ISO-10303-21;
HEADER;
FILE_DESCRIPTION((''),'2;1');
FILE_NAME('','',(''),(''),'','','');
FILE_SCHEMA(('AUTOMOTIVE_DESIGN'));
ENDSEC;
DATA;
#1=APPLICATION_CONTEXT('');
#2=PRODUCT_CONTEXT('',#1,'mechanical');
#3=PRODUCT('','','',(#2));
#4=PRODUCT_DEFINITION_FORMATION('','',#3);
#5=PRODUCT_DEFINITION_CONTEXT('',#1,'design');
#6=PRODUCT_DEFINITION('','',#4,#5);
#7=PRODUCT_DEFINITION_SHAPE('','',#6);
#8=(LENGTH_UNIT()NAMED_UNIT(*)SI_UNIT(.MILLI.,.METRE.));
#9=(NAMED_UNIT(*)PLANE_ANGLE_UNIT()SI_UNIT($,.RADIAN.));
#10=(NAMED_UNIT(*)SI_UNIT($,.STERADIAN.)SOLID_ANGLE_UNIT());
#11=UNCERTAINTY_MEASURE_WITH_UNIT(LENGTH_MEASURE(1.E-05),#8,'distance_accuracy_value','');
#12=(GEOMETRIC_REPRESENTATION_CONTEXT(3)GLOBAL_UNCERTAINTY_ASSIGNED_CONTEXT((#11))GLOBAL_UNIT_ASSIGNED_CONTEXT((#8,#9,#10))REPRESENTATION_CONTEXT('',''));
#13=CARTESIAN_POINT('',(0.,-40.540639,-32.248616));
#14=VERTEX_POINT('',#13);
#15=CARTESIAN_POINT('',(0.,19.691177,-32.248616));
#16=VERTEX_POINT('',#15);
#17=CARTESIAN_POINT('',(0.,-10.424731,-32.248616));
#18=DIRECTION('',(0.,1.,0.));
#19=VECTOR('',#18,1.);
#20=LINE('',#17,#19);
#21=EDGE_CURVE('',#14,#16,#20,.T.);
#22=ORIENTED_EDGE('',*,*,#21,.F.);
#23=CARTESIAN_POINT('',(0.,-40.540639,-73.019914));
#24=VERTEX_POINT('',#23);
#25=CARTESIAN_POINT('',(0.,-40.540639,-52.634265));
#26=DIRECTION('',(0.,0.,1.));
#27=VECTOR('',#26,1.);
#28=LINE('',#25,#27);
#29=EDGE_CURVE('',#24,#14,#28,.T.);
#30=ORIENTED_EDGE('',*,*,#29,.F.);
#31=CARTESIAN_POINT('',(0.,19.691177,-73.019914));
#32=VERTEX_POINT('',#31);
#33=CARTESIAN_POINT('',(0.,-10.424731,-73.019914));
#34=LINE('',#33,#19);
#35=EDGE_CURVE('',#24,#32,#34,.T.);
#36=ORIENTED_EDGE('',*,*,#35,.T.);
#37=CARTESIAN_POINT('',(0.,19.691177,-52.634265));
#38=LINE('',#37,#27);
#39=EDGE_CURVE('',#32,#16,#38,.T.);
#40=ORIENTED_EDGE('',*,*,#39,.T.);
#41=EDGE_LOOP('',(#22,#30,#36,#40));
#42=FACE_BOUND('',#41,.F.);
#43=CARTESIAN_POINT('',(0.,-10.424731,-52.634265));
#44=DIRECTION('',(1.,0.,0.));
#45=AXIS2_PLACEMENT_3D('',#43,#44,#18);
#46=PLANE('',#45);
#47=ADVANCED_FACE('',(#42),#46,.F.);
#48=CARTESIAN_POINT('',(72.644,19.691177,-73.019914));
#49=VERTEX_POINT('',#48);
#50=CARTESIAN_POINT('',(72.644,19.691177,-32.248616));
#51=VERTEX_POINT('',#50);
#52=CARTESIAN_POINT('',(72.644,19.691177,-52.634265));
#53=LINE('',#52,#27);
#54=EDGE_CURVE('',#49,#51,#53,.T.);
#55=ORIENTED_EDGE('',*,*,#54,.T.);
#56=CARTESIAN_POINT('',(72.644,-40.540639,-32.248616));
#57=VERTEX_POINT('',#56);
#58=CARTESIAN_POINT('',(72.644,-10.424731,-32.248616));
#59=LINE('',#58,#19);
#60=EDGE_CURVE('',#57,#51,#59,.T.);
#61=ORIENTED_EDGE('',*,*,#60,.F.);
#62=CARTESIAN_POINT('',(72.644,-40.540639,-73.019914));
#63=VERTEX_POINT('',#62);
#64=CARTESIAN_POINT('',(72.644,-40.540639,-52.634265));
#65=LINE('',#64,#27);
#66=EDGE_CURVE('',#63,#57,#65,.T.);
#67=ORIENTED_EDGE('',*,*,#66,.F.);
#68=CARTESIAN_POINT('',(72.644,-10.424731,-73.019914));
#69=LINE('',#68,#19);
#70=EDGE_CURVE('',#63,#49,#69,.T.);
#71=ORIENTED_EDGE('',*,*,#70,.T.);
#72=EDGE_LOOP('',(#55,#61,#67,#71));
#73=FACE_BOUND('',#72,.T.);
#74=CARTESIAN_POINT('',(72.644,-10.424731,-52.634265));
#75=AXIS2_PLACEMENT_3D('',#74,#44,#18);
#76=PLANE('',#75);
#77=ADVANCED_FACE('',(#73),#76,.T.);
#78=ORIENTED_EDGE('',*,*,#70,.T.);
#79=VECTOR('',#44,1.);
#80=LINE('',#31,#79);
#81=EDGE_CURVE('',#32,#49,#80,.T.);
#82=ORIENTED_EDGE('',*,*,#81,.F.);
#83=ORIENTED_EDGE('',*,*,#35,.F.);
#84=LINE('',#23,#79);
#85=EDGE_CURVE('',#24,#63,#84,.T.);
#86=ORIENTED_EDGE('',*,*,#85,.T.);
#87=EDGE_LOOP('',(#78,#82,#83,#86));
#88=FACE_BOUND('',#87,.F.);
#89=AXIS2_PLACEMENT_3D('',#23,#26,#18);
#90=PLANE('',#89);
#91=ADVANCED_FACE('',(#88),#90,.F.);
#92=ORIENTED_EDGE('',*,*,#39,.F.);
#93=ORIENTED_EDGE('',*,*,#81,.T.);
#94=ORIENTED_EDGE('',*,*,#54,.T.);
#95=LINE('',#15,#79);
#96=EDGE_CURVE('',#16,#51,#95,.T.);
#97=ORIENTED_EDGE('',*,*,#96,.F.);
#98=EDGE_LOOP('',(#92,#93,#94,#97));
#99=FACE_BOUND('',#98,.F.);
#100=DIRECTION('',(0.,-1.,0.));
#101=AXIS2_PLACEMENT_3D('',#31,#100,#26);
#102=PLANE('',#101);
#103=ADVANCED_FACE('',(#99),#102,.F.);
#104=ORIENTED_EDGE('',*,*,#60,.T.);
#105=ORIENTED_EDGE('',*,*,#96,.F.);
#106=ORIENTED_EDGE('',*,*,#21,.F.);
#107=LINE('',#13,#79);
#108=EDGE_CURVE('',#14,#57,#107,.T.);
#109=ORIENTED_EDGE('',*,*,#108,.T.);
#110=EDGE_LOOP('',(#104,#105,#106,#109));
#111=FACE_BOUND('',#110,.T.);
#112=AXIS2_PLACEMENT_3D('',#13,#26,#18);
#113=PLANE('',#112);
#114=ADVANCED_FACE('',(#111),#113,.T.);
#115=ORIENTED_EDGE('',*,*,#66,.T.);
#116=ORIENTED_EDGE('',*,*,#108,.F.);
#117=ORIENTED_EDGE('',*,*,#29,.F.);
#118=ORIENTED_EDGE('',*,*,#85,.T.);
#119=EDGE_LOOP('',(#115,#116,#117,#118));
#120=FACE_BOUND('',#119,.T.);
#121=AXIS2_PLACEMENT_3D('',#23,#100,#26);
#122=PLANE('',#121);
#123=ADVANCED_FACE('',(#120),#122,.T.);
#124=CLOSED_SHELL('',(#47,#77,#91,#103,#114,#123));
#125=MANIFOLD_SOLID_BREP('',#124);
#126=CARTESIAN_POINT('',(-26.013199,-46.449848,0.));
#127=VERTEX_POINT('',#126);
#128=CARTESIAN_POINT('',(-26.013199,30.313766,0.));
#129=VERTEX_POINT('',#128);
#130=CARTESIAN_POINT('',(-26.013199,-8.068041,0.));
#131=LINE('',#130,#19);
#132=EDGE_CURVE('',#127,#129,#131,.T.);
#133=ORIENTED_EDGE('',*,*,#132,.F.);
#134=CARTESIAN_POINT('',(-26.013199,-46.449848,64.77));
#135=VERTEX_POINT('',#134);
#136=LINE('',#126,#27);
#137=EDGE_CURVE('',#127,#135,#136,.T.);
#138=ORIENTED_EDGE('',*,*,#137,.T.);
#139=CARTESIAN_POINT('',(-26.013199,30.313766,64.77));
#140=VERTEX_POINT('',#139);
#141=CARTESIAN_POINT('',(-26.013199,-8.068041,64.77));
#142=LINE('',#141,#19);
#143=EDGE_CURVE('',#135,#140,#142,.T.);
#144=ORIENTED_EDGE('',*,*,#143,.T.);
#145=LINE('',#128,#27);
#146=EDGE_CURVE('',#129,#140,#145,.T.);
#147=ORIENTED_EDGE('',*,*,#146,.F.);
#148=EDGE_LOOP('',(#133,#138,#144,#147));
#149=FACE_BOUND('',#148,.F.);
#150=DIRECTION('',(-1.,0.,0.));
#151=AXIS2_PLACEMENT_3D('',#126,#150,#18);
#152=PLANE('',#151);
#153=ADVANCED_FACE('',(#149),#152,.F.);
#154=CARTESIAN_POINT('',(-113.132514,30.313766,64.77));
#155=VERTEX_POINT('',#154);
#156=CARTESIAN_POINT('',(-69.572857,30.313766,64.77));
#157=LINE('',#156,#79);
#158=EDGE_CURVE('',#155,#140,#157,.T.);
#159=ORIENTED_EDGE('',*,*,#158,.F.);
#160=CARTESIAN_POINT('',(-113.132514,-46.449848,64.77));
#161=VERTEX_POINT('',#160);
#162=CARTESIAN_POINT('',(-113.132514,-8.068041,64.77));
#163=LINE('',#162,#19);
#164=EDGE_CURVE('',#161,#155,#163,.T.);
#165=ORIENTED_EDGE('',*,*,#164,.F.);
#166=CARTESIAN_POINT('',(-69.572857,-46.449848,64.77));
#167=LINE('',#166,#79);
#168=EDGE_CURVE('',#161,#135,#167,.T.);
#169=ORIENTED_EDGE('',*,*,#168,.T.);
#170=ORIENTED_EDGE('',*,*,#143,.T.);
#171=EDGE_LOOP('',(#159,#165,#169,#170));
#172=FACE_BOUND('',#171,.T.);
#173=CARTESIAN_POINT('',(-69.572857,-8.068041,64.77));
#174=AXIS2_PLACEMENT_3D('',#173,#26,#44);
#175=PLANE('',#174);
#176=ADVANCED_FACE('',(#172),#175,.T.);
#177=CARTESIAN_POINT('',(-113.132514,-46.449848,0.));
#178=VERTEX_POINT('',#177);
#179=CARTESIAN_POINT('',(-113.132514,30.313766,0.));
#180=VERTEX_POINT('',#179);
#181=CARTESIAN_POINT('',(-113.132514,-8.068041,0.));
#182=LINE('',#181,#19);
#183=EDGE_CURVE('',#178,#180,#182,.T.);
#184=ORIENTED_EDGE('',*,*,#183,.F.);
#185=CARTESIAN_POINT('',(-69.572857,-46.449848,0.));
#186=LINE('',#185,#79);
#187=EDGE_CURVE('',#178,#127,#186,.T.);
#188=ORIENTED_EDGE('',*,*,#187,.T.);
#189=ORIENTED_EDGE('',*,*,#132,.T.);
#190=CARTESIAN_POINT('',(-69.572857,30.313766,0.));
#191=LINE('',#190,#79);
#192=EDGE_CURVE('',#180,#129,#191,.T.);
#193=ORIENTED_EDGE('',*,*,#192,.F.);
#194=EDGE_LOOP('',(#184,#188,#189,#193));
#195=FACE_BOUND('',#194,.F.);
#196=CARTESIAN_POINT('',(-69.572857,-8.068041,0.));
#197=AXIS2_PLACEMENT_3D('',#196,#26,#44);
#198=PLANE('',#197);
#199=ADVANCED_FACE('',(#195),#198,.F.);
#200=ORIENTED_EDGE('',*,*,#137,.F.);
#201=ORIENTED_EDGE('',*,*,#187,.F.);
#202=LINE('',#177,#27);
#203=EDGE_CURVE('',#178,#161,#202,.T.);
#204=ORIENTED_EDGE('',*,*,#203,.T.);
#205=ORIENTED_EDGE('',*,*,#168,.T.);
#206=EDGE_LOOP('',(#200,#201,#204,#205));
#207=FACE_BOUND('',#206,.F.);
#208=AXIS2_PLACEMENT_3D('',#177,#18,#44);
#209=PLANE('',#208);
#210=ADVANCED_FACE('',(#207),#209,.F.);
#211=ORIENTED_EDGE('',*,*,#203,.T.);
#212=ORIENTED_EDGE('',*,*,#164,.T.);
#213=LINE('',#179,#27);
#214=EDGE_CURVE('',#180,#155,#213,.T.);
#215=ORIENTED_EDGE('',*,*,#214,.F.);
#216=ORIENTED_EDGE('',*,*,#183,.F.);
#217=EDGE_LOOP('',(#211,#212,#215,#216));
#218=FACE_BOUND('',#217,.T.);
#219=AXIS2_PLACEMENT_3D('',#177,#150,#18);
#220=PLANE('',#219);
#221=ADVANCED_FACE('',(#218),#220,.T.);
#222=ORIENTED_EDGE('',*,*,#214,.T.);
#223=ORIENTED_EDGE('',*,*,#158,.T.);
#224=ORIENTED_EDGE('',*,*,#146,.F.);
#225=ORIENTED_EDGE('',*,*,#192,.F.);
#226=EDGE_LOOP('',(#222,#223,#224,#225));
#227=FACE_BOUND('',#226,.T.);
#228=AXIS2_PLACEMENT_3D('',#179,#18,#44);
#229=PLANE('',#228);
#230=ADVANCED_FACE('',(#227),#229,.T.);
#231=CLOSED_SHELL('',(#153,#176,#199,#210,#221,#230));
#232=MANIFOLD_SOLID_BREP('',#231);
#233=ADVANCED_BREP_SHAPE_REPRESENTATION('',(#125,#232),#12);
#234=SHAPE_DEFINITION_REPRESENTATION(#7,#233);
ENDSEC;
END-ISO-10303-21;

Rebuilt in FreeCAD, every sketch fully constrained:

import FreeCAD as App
import Part
import Sketcher

V = App.Vector
Q = App.Units.Quantity


def add_polygon(sketch, points):
    """Adds a closed chain of lines whose ends are joined by coincident constraints."""
    first, n = sketch.GeometryCount, len(points)
    for a, b in zip(points, points[1:] + points[:1]):
        sketch.addGeometry(Part.LineSegment(App.Vector(*a, 0), App.Vector(*b, 0)), False)
    for i in range(n):
        sketch.addConstraint(Sketcher.Constraint("Coincident", first + i, 2, first + (i + 1) % n, 1))

doc = App.newDocument("Part")
body = doc.addObject("PartDesign::Body", "Body")

# Sketch on XY plane
sketch1 = doc.addObject("Sketcher::SketchObject", "Sketch")
body.addObject(sketch1)
sketch1.AttachmentSupport = (doc.XY_Plane, [""])
sketch1.MapMode = "FlatFace"
add_polygon(sketch1, [(-113, 30), (-113, -46), (-26, -46), (-26, 30)])  # lines 0-3
sketch1.addConstraint([
    Sketcher.Constraint("Vertical", 0),
    Sketcher.Constraint("Horizontal", 1),
    Sketcher.Constraint("Vertical", 2),
    Sketcher.Constraint("Horizontal", 3),
    Sketcher.Constraint("DistanceX", 1, 2, -1, 1, 26.013199),
    Sketcher.Constraint("DistanceX", 1, 1, 1, 2, 87.119315),
    Sketcher.Constraint("DistanceY", 0, 2, 0, 1, 76.763614),
    Sketcher.Constraint("DistanceY", 0, 2, -1, 1, 46.449848),
])
pad1 = doc.addObject("PartDesign::Pad", "Pad")
body.addObject(pad1)
pad1.Profile = sketch1
pad1.Length = Q("2.55 in")
body2 = doc.addObject("PartDesign::Body", "Body001")

# Sketch on YZ plane
sketch2 = doc.addObject("Sketcher::SketchObject", "Sketch001")
body2.addObject(sketch2)
sketch2.AttachmentSupport = (doc.getObject("YZ_Plane001"), [""])
sketch2.MapMode = "FlatFace"
add_polygon(sketch2, [(-41, -32), (-41, -73), (20, -73), (20, -32)])  # lines 0-3
sketch2.addConstraint([
    Sketcher.Constraint("Vertical", 0),
    Sketcher.Constraint("Horizontal", 1),
    Sketcher.Constraint("Vertical", 2),
    Sketcher.Constraint("Horizontal", 3),
    Sketcher.Constraint("DistanceY", 0, 2, 0, 1, 40.771298),
    Sketcher.Constraint("DistanceX", 1, 1, 1, 2, 60.231816),
    Sketcher.Constraint("DistanceX", 0, 2, -1, 1, 40.540639),
    Sketcher.Constraint("DistanceY", 0, 2, -1, 1, 73.019914),
])
pad2 = doc.addObject("PartDesign::Pad", "Pad001")
body2.addObject(pad2)
pad2.Profile = sketch2
pad2.Length = Q("2.86 in")

doc.recompute()
